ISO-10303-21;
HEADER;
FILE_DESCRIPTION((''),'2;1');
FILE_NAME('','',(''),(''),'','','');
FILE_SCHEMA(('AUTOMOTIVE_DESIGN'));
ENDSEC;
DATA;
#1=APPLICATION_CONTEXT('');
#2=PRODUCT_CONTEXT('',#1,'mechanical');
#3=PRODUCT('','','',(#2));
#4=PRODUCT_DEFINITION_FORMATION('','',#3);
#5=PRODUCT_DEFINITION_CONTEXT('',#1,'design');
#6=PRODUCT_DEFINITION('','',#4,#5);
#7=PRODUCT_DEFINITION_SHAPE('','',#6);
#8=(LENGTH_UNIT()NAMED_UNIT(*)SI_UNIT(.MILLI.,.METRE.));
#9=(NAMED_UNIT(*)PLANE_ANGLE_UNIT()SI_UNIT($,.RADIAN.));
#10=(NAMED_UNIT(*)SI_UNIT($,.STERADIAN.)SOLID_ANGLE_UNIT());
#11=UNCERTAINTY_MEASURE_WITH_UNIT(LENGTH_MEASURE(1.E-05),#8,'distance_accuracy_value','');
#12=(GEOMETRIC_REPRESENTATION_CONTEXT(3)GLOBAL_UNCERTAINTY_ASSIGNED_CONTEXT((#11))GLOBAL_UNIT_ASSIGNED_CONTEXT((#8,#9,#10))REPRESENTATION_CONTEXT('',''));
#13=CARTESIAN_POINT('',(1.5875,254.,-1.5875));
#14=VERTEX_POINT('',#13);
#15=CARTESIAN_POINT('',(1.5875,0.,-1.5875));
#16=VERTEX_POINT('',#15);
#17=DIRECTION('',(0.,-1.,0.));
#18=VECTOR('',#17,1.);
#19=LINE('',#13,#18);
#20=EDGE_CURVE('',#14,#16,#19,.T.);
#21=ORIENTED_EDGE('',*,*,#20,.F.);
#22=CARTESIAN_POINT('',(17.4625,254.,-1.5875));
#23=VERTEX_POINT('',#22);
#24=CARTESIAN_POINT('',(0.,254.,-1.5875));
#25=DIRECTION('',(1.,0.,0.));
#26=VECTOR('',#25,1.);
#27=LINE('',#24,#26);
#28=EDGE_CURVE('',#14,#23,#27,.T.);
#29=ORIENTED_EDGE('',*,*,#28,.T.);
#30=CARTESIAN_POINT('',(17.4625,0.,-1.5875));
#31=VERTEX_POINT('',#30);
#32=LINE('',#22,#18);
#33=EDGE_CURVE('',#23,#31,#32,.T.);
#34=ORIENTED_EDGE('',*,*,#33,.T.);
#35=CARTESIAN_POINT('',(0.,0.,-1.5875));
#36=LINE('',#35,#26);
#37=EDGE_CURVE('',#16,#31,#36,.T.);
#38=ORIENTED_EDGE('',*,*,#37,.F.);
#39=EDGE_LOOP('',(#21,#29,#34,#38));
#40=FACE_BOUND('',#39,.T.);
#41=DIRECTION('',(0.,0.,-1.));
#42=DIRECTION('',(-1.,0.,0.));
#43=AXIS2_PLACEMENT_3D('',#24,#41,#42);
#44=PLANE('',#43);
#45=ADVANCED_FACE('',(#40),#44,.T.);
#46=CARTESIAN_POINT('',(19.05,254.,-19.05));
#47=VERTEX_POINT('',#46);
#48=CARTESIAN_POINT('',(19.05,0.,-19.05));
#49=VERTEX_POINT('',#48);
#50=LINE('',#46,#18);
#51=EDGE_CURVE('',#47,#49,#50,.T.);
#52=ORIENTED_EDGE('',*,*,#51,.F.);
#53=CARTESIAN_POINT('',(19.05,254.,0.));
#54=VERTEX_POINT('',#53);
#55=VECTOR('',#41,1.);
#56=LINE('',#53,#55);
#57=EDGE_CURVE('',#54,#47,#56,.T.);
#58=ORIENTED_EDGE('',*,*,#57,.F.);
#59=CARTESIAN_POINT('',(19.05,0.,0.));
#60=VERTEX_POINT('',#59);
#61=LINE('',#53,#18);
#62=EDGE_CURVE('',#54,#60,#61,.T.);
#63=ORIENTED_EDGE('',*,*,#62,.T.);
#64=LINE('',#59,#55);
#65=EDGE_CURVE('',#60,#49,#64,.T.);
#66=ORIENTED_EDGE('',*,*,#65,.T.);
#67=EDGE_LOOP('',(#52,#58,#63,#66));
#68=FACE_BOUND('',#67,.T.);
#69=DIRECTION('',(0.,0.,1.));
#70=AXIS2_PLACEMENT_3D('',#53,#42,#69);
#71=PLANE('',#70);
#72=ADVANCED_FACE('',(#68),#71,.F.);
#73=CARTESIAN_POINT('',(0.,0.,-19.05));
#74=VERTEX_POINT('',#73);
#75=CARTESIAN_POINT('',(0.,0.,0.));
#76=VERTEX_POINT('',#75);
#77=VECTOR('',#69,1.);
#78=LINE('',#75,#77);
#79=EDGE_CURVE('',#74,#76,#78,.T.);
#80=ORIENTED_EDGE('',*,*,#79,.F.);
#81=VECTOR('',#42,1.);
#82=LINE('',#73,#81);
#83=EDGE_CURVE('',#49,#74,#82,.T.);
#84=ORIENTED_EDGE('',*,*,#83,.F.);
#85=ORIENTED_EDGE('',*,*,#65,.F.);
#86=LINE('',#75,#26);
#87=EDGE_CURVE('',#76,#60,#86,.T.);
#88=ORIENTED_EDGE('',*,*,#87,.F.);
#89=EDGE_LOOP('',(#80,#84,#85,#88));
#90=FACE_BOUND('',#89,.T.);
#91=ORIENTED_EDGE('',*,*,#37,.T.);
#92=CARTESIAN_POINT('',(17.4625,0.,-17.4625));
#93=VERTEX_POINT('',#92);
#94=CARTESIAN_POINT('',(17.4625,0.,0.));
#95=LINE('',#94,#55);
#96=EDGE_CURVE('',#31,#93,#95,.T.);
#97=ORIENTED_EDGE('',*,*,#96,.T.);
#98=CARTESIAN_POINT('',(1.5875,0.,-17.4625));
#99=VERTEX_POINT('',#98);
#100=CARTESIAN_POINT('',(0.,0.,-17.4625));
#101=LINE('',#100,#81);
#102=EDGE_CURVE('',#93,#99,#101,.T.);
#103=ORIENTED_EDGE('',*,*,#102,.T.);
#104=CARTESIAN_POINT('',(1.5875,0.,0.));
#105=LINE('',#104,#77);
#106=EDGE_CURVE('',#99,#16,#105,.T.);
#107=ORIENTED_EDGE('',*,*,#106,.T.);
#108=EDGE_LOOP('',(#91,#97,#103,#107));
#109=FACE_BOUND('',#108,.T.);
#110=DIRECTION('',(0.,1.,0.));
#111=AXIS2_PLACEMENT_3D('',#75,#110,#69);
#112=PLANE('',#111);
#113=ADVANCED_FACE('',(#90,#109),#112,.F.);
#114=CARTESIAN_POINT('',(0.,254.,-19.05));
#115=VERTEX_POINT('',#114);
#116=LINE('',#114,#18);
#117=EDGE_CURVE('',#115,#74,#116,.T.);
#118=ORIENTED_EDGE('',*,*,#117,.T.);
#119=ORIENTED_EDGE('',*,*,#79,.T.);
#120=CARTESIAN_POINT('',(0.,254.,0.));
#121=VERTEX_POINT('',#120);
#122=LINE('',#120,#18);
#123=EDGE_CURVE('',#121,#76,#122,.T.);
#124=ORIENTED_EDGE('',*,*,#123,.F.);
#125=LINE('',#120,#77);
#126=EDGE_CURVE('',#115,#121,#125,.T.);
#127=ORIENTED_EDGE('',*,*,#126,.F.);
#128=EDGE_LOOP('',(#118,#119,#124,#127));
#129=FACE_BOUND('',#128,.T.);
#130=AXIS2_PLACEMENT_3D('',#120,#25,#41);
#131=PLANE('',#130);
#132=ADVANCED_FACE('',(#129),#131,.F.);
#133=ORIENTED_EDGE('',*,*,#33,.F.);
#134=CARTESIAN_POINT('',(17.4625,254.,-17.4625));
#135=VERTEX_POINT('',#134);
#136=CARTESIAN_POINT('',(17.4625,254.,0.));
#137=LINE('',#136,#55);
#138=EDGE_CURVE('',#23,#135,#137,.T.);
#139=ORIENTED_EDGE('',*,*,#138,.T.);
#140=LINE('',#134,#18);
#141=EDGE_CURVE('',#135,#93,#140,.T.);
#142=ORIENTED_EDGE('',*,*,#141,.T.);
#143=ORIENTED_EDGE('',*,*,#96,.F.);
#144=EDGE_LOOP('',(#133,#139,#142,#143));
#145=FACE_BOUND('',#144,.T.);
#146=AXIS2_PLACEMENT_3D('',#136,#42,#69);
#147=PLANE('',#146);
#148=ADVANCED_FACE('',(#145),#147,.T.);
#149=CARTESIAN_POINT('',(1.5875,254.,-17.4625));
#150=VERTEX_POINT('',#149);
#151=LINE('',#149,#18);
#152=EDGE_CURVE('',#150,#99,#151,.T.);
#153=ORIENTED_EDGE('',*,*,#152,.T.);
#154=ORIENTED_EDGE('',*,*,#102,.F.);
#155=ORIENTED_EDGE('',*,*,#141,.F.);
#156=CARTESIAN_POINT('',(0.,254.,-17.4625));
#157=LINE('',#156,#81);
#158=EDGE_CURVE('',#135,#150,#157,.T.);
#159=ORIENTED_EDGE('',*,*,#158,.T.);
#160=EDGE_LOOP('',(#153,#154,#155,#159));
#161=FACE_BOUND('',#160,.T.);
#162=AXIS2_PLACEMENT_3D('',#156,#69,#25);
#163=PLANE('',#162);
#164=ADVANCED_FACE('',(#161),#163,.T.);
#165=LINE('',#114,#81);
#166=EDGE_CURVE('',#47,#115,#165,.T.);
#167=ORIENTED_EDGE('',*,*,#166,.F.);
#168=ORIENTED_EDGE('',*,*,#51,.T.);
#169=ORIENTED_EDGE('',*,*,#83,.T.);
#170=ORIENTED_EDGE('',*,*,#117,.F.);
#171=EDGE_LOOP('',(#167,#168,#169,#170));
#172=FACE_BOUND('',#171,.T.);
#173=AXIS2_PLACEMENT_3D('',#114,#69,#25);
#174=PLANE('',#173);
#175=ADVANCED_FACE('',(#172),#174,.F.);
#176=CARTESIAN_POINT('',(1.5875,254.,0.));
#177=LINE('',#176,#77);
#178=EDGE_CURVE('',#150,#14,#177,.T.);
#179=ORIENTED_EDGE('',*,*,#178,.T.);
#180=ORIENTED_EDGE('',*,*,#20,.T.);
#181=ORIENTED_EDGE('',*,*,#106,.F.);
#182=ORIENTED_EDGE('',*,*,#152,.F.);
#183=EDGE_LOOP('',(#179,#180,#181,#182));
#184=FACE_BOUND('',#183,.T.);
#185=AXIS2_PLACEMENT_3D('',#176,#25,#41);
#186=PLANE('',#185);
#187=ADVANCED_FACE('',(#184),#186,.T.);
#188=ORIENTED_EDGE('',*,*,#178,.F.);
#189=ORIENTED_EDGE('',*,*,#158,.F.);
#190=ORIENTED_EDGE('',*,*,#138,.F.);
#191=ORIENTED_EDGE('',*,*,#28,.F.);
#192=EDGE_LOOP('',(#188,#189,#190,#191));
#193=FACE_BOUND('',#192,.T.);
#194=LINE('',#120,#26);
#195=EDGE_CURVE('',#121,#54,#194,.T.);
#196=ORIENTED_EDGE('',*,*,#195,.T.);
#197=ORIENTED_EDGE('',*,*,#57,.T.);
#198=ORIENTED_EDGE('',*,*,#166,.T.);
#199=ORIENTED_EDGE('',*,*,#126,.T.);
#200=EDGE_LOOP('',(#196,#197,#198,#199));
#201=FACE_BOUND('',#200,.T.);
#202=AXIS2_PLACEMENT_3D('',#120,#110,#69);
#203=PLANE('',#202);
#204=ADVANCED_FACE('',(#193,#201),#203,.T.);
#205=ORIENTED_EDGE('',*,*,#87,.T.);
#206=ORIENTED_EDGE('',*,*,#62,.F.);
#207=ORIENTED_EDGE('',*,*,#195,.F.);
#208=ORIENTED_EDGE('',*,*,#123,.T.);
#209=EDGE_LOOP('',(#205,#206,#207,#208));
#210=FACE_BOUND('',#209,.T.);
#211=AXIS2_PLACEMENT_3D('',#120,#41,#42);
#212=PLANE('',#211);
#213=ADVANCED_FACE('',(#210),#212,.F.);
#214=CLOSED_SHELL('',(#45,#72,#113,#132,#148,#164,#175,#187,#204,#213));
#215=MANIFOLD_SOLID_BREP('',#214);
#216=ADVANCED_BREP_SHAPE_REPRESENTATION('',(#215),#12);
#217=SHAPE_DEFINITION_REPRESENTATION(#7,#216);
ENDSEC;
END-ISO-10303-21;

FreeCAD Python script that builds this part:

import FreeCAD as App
import Part
import Sketcher
Q = App.Units.Quantity

doc = App.newDocument("Part")
params = doc.addObject("Spreadsheet::Sheet", "Params")
for row, (alias, value) in enumerate([
    ("sketch1_width", "0.75 in"),
    ("sketch1_width2", "0.625 in"),
    ("pad1_length", "10 in"),
], start=1):
    params.set(f"A{row}", alias)
    params.set(f"B{row}", "=" + value)
    params.setAlias(f"B{row}", alias)

body = doc.addObject("PartDesign::Body", "Body")

sketch1 = body.newObject("Sketcher::SketchObject", "Sketch")
sketch1.AttachmentSupport = (doc.getObject("XZ_Plane"), [""])
sketch1.MapMode = "FlatFace"
sketch1.addGeometry(Part.LineSegment(App.Vector(0, -19, 0), App.Vector(0, 0, 0)), False)
sketch1.addGeometry(Part.LineSegment(App.Vector(0, 0, 0), App.Vector(19, 0, 0)), False)
sketch1.addGeometry(Part.LineSegment(App.Vector(19, 0, 0), App.Vector(19, -19, 0)), False)
sketch1.addGeometry(Part.LineSegment(App.Vector(19, -19, 0), App.Vector(0, -19, 0)), False)
sketch1.addGeometry(Part.LineSegment(App.Vector(17, -2, 0), App.Vector(2, -2, 0)), False)
sketch1.addGeometry(Part.LineSegment(App.Vector(2, -2, 0), App.Vector(2, -17, 0)), False)
sketch1.addGeometry(Part.LineSegment(App.Vector(2, -17, 0), App.Vector(17, -17, 0)), False)
sketch1.addGeometry(Part.LineSegment(App.Vector(17, -17, 0), App.Vector(17, -2, 0)), False)
sketch1.addConstraint(Sketcher.Constraint("Coincident", 0, 2, 1, 1))
sketch1.addConstraint(Sketcher.Constraint("Coincident", 1, 2, 2, 1))
sketch1.addConstraint(Sketcher.Constraint("Coincident", 2, 2, 3, 1))
sketch1.addConstraint(Sketcher.Constraint("Coincident", 3, 2, 0, 1))
sketch1.addConstraint(Sketcher.Constraint("Coincident", 4, 2, 5, 1))
sketch1.addConstraint(Sketcher.Constraint("Coincident", 5, 2, 6, 1))
sketch1.addConstraint(Sketcher.Constraint("Coincident", 6, 2, 7, 1))
sketch1.addConstraint(Sketcher.Constraint("Coincident", 7, 2, 4, 1))
sketch1.addConstraint(Sketcher.Constraint("Vertical", 0))
sketch1.addConstraint(Sketcher.Constraint("Horizontal", 1))
sketch1.addConstraint(Sketcher.Constraint("Vertical", 2))
sketch1.addConstraint(Sketcher.Constraint("Horizontal", 3))
sketch1.addConstraint(Sketcher.Constraint("Horizontal", 4))
sketch1.addConstraint(Sketcher.Constraint("Vertical", 5))
sketch1.addConstraint(Sketcher.Constraint("Horizontal", 6))
sketch1.addConstraint(Sketcher.Constraint("Vertical", 7))
sketch1.addConstraint(Sketcher.Constraint("Coincident", 0, 2, -1, 1))
sketch1.addConstraint(Sketcher.Constraint("Equal", 3, 0))
sketch1.addConstraint(Sketcher.Constraint("Equal", 6, 5))
sketch1.addConstraint(Sketcher.Constraint("DistanceX", 1, 1, 1, 2, Q("0.75 in")))
sketch1.addConstraint(Sketcher.Constraint("DistanceX", 4, 2, 4, 1, Q("0.625 in")))
sketch1.addConstraint(Sketcher.Constraint("DistanceX", -1, 1, 4, 2, Q("0.0625 in")))
sketch1.addConstraint(Sketcher.Constraint("DistanceY", 4, 2, -1, 1, Q("0.0625 in")))
sketch1.setExpression("Constraints[19]", "Params.sketch1_width")
sketch1.setExpression("Constraints[20]", "Params.sketch1_width2")
pad1 = body.newObject("PartDesign::Pad", "Pad")
pad1.Profile = sketch1
pad1.setExpression("Length", "Params.pad1_length")
pad1.Reversed = True

doc.recompute()
